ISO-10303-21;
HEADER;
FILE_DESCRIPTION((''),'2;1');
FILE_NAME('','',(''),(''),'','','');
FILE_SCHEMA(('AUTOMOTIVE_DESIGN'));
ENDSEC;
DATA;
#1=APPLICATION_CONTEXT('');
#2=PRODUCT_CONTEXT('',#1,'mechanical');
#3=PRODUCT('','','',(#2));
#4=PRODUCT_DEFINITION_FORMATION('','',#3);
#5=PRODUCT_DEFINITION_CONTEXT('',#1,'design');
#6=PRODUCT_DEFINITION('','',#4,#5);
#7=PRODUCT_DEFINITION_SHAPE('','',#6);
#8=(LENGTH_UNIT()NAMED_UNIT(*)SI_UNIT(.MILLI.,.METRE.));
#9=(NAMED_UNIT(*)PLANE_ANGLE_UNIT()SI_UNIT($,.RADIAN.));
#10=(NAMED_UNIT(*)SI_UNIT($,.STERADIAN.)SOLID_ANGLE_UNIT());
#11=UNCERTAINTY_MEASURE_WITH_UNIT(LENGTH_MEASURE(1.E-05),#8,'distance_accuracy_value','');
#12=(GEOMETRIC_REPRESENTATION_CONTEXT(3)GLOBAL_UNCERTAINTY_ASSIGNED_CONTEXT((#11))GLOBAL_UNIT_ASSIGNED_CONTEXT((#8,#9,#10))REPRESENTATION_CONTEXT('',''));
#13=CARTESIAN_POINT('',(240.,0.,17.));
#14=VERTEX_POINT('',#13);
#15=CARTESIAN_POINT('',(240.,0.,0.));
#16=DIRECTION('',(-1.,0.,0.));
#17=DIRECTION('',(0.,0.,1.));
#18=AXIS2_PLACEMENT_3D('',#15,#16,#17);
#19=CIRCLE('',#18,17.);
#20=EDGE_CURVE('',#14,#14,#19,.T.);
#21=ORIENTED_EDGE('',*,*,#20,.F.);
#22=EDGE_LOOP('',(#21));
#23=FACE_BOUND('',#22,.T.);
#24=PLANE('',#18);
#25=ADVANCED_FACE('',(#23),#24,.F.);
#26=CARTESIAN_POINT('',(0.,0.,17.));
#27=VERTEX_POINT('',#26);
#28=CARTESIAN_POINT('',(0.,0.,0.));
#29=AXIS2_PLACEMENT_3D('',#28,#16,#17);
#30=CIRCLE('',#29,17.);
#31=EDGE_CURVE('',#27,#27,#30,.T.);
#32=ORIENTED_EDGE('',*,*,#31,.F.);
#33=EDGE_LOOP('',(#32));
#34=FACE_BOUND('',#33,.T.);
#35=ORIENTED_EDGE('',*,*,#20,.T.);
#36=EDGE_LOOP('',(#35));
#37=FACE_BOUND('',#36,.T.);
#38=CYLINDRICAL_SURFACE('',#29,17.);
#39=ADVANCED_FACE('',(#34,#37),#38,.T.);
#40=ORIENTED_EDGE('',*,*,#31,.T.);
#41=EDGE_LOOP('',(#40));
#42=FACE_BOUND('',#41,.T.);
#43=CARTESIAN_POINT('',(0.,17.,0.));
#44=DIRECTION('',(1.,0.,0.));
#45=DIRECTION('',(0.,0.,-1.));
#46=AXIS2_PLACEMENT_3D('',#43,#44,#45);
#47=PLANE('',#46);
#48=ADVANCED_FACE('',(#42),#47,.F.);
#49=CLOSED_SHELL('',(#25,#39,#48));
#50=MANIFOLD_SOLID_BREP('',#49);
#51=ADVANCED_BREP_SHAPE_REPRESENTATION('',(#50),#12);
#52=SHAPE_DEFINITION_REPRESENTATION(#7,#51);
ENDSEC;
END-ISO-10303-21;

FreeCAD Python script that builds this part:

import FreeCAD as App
import Part
import Sketcher
Q = App.Units.Quantity


def add_polygon(sketch, points):
    """Adds a closed chain of lines whose ends are joined by coincident constraints."""
    first, n = sketch.GeometryCount, len(points)
    for a, b in zip(points, points[1:] + points[:1]):
        sketch.addGeometry(Part.LineSegment(App.Vector(*a, 0), App.Vector(*b, 0)), False)
    for i in range(n):
        sketch.addConstraint(Sketcher.Constraint("Coincident", first + i, 2, first + (i + 1) % n, 1))

doc = App.newDocument("Part")
params = doc.addObject("Spreadsheet::Sheet", "Params")
for row, (alias, value) in enumerate([
    ("sketch1_width", "240 mm"),
    ("sketch1_height", "17 mm"),
    ("revolution_angle", "360 deg"),
], start=1):
    params.set(f"A{row}", alias)
    params.set(f"B{row}", "=" + value)
    params.setAlias(f"B{row}", alias)

body = doc.addObject("PartDesign::Body", "Body")

# Sketch on XY plane
sketch1 = doc.addObject("Sketcher::SketchObject", "Sketch")
body.addObject(sketch1)
sketch1.AttachmentSupport = (doc.XY_Plane, [""])
sketch1.MapMode = "FlatFace"
add_polygon(sketch1, [(0, 17), (0, 0), (240, 0), (240, 17)])  # lines 0-3
sketch1.addConstraint(Sketcher.Constraint("Vertical", 0))
sketch1.addConstraint(Sketcher.Constraint("Horizontal", 1))
sketch1.addConstraint(Sketcher.Constraint("Vertical", 2))
sketch1.addConstraint(Sketcher.Constraint("Horizontal", 3))
sketch1.addConstraint(Sketcher.Constraint("Coincident", 0, 2, -1, 1))
sketch1.addConstraint(Sketcher.Constraint("DistanceX", 1, 1, 1, 2, Q("240 mm")))
sketch1.addConstraint(Sketcher.Constraint("DistanceY", 0, 2, 0, 1, Q("17 mm")))
sketch1.setExpression("Constraints[9]", "Params.sketch1_width")
sketch1.setExpression("Constraints[10]", "Params.sketch1_height")
revolution = doc.addObject("PartDesign::Revolution", "Revolution")
body.addObject(revolution)
revolution.Profile = sketch1
revolution.ReferenceAxis = (sketch1, ["H_Axis"])
revolution.setExpression("Angle", "Params.revolution_angle")

doc.recompute()
